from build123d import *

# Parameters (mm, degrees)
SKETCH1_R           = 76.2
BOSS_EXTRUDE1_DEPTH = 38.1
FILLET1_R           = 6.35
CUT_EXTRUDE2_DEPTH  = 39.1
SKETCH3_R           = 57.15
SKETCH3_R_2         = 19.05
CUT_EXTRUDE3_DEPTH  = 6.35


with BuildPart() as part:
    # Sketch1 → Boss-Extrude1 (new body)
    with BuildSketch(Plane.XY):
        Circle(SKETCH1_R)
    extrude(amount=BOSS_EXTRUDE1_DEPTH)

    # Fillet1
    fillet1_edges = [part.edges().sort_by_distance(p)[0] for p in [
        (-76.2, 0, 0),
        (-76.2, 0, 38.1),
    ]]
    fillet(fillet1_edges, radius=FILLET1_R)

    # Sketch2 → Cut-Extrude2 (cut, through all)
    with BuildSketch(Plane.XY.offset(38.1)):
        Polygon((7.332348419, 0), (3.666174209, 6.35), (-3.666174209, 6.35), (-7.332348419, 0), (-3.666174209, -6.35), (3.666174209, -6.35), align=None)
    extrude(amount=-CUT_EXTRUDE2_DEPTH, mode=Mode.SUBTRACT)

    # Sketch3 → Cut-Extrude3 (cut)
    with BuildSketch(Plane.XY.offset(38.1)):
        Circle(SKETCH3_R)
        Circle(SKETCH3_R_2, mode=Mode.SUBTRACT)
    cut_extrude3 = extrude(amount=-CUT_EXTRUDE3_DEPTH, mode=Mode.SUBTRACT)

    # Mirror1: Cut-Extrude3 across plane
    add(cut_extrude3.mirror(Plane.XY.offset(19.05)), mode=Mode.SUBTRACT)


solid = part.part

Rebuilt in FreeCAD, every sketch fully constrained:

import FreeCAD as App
import Part
import Sketcher

V = App.Vector
Q = App.Units.Quantity


def edges_at(feature, points):
    """Names of the edges that pass closest to the given points."""
    edges = feature.Shape.Edges
    near = lambda p: min(range(len(edges)), key=lambda i: edges[i].distToShape(Part.Vertex(*p))[0])
    return sorted({f"Edge{near(p) + 1}" for p in points})

doc = App.newDocument("Part")
params = doc.addObject("Spreadsheet::Sheet", "Params")
for row, (alias, value) in enumerate([
    ("sketch1_diameter", "6 in"),
    ("pad1_length", "1.5 in"),
    ("fillet_radius", "0.25 in"),
    ("sketch3_diameter", "4.5 in"),
    ("sketch3_diameter2", "1.5 in"),
    ("pocket2_length", "0.25 in"),
], start=1):
    params.set(f"A{row}", alias)
    params.set(f"B{row}", "=" + value)
    params.setAlias(f"B{row}", alias)

body = doc.addObject("PartDesign::Body", "Body")

# Sketch on XY plane
sketch1 = doc.addObject("Sketcher::SketchObject", "Sketch")
body.addObject(sketch1)
sketch1.AttachmentSupport = (doc.XY_Plane, [""])
sketch1.MapMode = "FlatFace"
sketch1.addGeometry(Part.Circle(V(0, 0, 0), V(0, 0, 1), 76), False)
sketch1.addConstraint([
    Sketcher.Constraint("Coincident", 0, 3, -1, 1),
    Sketcher.Constraint("Diameter", 0, Q("6 in")),
])
sketch1.setExpression("Constraints[1]", "Params.sketch1_diameter")
pad1 = doc.addObject("PartDesign::Pad", "Pad")
body.addObject(pad1)
pad1.Profile = sketch1
pad1.setExpression("Length", "Params.pad1_length")
doc.recompute()

fillet = doc.addObject("PartDesign::Fillet", "Fillet")
body.addObject(fillet)
fillet.Base = (pad1, edges_at(pad1, [(-76.2, 0, 0), (-76.2, 0, 38.1)]))
fillet.setExpression("Radius", "Params.fillet_radius")

# Sketch on XY plane
sketch2 = doc.addObject("Sketcher::SketchObject", "Sketch001")
body.addObject(sketch2)
sketch2.AttachmentSupport = (doc.XY_Plane, [""])
sketch2.MapMode = "FlatFace"
sketch2.AttachmentOffset = App.Placement(V(0, 0, 1.5 * 25.4), App.Rotation())
sketch2.addGeometry([
    Part.LineSegment(V(7, 0, 0), V(4, 6, 0)),  # 0
    Part.LineSegment(V(4, 6, 0), V(-4, 6, 0)),  # 1
    Part.LineSegment(V(-4, 6, 0), V(-7, 0, 0)),  # 2
    Part.LineSegment(V(-7, 0, 0), V(-4, -6, 0)),  # 3
    Part.LineSegment(V(-4, -6, 0), V(4, -6, 0)),  # 4
    Part.LineSegment(V(4, -6, 0), V(7, 0, 0)),  # 5
], False)
sketch2.addConstraint([
    Sketcher.Constraint("Coincident", 0, 2, 1, 1),
    Sketcher.Constraint("Coincident", 1, 2, 2, 1),
    Sketcher.Constraint("Coincident", 2, 2, 3, 1),
    Sketcher.Constraint("Coincident", 3, 2, 4, 1),
    Sketcher.Constraint("Coincident", 4, 2, 5, 1),
    Sketcher.Constraint("Coincident", 5, 2, 0, 1),
    Sketcher.Constraint("Horizontal", 1),
    Sketcher.Constraint("Horizontal", 4),
    Sketcher.Constraint("Symmetric", 0, 2, 3, 2, -1, 1),
    Sketcher.Constraint("Symmetric", 2, 2, 5, 2, -1, 1),
    Sketcher.Constraint("PointOnObject", 2, 2, -1),
    Sketcher.Constraint("Parallel", 2, 5),
    Sketcher.Constraint("Vertical", 1, 2, 3, 2),
    Sketcher.Constraint("Angle", 0, Q("120 deg")),
    Sketcher.Constraint("DistanceY", 3, 2, 1, 2, Q("0.5 in")),
    Sketcher.Constraint("DistanceX", 1, 2, 1, 1, 7.332348),
])
pocket1 = doc.addObject("PartDesign::Pocket", "Pocket")
body.addObject(pocket1)
pocket1.Profile = sketch2
pocket1.Type = "ThroughAll"

# Sketch on XY plane
sketch3 = doc.addObject("Sketcher::SketchObject", "Sketch002")
body.addObject(sketch3)
sketch3.AttachmentSupport = (doc.XY_Plane, [""])
sketch3.MapMode = "FlatFace"
sketch3.AttachmentOffset = App.Placement(V(0, 0, 1.5 * 25.4), App.Rotation())
sketch3.addGeometry([
    Part.Circle(V(0, 0, 0), V(0, 0, 1), 57),
    Part.Circle(V(0, 0, 0), V(0, 0, 1), 19),
], False)
sketch3.addConstraint([
    Sketcher.Constraint("Coincident", 0, 3, -1, 1),
    Sketcher.Constraint("Coincident", 1, 3, -1, 1),
    Sketcher.Constraint("Diameter", 0, Q("4.5 in")),
    Sketcher.Constraint("Diameter", 1, Q("1.5 in")),
])
sketch3.setExpression("Constraints[2]", "Params.sketch3_diameter")
sketch3.setExpression("Constraints[3]", "Params.sketch3_diameter2")
pocket2 = doc.addObject("PartDesign::Pocket", "Pocket001")
body.addObject(pocket2)
pocket2.Profile = sketch3
pocket2.setExpression("Length", "Params.pocket2_length")
doc.recompute()

datumplane = doc.addObject("PartDesign::Plane", "DatumPlane")
body.addObject(datumplane)
datumplane.AttachmentSupport = (doc.XY_Plane, [""])
datumplane.MapMode = "FlatFace"
datumplane.AttachmentOffset = App.Placement(V(0, 0, 0.75 * 25.4), App.Rotation())
mirrored = doc.addObject("PartDesign::Mirrored", "Mirrored")
body.addObject(mirrored)
mirrored.Originals = [pocket2]
mirrored.MirrorPlane = (datumplane, [""])
body.Tip = mirrored

doc.recompute()
